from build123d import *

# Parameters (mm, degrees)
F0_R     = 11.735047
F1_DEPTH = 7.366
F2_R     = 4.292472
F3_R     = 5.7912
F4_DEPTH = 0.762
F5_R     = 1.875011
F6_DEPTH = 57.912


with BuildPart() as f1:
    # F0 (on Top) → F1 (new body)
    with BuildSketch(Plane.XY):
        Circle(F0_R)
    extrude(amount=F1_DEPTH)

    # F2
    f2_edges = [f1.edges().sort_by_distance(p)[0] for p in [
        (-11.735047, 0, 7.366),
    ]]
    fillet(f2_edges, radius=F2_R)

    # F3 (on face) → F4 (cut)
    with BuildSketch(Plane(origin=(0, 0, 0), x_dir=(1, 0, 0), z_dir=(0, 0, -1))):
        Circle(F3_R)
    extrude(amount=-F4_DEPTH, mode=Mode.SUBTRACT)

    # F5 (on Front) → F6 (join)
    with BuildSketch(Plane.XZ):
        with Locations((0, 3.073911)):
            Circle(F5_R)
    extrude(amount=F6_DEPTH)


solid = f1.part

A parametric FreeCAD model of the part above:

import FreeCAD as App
import Part
import Sketcher
Q = App.Units.Quantity


def edges_at(feature, points):
    """Names of the edges that pass closest to the given points."""
    edges = feature.Shape.Edges
    near = lambda p: min(range(len(edges)), key=lambda i: edges[i].distToShape(Part.Vertex(*p))[0])
    return sorted({f"Edge{near(p) + 1}" for p in points})

doc = App.newDocument("Part")
body = doc.addObject("PartDesign::Body", "Body")

# Sketch on XY plane
sketch1 = body.newObject("Sketcher::SketchObject", "Sketch")
sketch1.AttachmentSupport = (doc.getObject("XY_Plane"), [""])
sketch1.MapMode = "FlatFace"
sketch1.addGeometry(Part.Circle(App.Vector(0, 0, 0), App.Vector(0, 0, 1), 12), False)
sketch1.addConstraint([
    Sketcher.Constraint("Coincident", 0, 3, -1, 1),
    Sketcher.Constraint("Diameter", 0, 23.470094),
])
pad1 = body.newObject("PartDesign::Pad", "Pad")
pad1.Profile = sketch1
pad1.Length = Q("0.29 in")
doc.recompute()

fillet = body.newObject("PartDesign::Fillet", "Fillet")
fillet.Base = (pad1, edges_at(pad1, [(-11.735, 0, 7.366)]))
fillet.Radius = 4.292472

# Sketch on XY plane
sketch2 = body.newObject("Sketcher::SketchObject", "Sketch001")
sketch2.AttachmentSupport = (doc.getObject("XY_Plane"), [""])
sketch2.MapMode = "FlatFace"
sketch2.addGeometry(Part.Circle(App.Vector(0, 0, 0), App.Vector(0, 0, 1), 6), False)
sketch2.addConstraint([
    Sketcher.Constraint("Coincident", 0, 3, -1, 1),
    Sketcher.Constraint("Diameter", 0, Q("0.456 in")),
])
pocket1 = body.newObject("PartDesign::Pocket", "Pocket")
pocket1.Profile = sketch2
pocket1.Length = Q("0.03 in")
pocket1.Reversed = True

# Sketch on XZ plane
sketch3 = body.newObject("Sketcher::SketchObject", "Sketch002")
sketch3.AttachmentSupport = (doc.getObject("XZ_Plane"), [""])
sketch3.MapMode = "FlatFace"
sketch3.addGeometry(Part.Circle(App.Vector(0, 3.1, 0), App.Vector(0, 0, 1), 1.9), False)
sketch3.addConstraint([
    Sketcher.Constraint("PointOnObject", 0, 3, -2),
    Sketcher.Constraint("Diameter", 0, 3.750022),
    Sketcher.Constraint("DistanceY", -1, 1, 0, 3, 3.073911),
])
pad2 = body.newObject("PartDesign::Pad", "Pad001")
pad2.Profile = sketch3
pad2.Length = Q("2.28 in")

doc.recompute()
